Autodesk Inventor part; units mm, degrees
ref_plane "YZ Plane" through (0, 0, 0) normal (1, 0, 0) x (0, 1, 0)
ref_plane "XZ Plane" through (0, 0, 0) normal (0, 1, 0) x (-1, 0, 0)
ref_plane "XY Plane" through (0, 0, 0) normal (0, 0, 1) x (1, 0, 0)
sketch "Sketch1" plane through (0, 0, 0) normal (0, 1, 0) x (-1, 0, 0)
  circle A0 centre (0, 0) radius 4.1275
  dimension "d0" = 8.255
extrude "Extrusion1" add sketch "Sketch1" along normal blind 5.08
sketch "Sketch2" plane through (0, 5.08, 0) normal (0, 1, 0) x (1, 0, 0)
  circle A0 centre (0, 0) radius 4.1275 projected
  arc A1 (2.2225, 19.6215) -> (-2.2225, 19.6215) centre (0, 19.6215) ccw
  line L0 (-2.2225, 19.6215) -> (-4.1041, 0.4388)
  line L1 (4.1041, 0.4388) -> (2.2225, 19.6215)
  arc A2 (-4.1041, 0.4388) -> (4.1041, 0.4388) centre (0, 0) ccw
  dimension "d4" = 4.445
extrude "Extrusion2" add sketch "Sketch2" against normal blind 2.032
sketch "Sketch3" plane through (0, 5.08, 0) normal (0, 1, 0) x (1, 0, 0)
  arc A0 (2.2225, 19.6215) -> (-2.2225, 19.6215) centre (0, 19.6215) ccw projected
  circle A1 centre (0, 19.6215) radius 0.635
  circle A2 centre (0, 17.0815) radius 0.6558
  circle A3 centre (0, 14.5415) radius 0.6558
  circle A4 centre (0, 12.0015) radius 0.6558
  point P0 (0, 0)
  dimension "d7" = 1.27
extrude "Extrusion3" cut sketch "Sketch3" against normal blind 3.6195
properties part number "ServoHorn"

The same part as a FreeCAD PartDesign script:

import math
import FreeCAD as App
import Part
import Sketcher
Q = App.Units.Quantity

doc = App.newDocument("Part")
body = doc.addObject("PartDesign::Body", "Body")

# Sketch on XZ plane
sketch1 = body.newObject("Sketcher::SketchObject", "Sketch")
sketch1.AttachmentSupport = (doc.getObject("XZ_Plane"), [""])
sketch1.MapMode = "FlatFace"
sketch1.addGeometry(Part.Circle(App.Vector(0, 0, 0), App.Vector(0, 0, 1), 4.1), False)
sketch1.addConstraint([
    Sketcher.Constraint("Coincident", 0, 3, -1, 1),
    Sketcher.Constraint("Diameter", 0, Q("0.325 in")),
])
pad1 = body.newObject("PartDesign::Pad", "Pad")
pad1.Profile = sketch1
pad1.Length = Q("0.2 in")
pad1.Reversed = True

# Sketch on XZ plane
sketch2 = body.newObject("Sketcher::SketchObject", "Sketch001")
sketch2.AttachmentSupport = (doc.getObject("XZ_Plane"), [""])
sketch2.MapMode = "FlatFace"
sketch2.AttachmentOffset = App.Placement(App.Vector(0, 0, -0.2 * 25.4), App.Rotation())
sketch2.addGeometry([
    Part.ArcOfCircle(Part.Circle(App.Vector(0, 0, 0), App.Vector(0, 0, 1), 4.1), math.radians(-6), math.radians(186)),
    Part.LineSegment(App.Vector(4.1, -0.4, 0), App.Vector(2.2, -19.6, 0)),
    Part.ArcOfCircle(Part.Circle(App.Vector(0, -19.6, 0), App.Vector(0, 0, 1), 2.2), math.radians(180), math.radians(360)),
    Part.LineSegment(App.Vector(-2.2, -19.6, 0), App.Vector(-4.1, -0.4, 0)),
], False)
sketch2.addConstraint([
    Sketcher.Constraint("Coincident", 0, 1, 1, 1),
    Sketcher.Constraint("Coincident", 1, 2, 2, 2),
    Sketcher.Constraint("Coincident", 2, 1, 3, 1),
    Sketcher.Constraint("Coincident", 3, 2, 0, 2),
    Sketcher.Constraint("Coincident", 0, 3, -1, 1),
    Sketcher.Constraint("Symmetric", 1, 2, 2, 1, -2),
    Sketcher.Constraint("Horizontal", 2, 3, 1, 2),
    Sketcher.Constraint("Horizontal", 0, 1, 3, 2),
    Sketcher.Constraint("Radius", 2, Q("0.0875 in")),
    Sketcher.Constraint("Radius", 0, Q("0.1625 in")),
    Sketcher.Constraint("DistanceY", 2, 3, -1, 1, Q("0.7725 in")),
    Sketcher.Constraint("Distance", 1, 19.2748),
])
pad2 = body.newObject("PartDesign::Pad", "Pad001")
pad2.Profile = sketch2
pad2.Length = Q("0.08 in")

# Sketch on XZ plane
sketch3 = body.newObject("Sketcher::SketchObject", "Sketch002")
sketch3.AttachmentSupport = (doc.getObject("XZ_Plane"), [""])
sketch3.MapMode = "FlatFace"
sketch3.AttachmentOffset = App.Placement(App.Vector(0, 0, -0.2 * 25.4), App.Rotation())
sketch3.addGeometry([
    Part.Circle(App.Vector(0, -19.6, 0), App.Vector(0, 0, 1), 0.6),
    Part.Circle(App.Vector(0, -17.1, 0), App.Vector(0, 0, 1), 0.7),
    Part.Circle(App.Vector(0, -14.5, 0), App.Vector(0, 0, 1), 0.7),
    Part.Circle(App.Vector(0, -12, 0), App.Vector(0, 0, 1), 0.7),
], False)
sketch3.addConstraint([
    Sketcher.Constraint("Equal", 1, 2),
    Sketcher.Constraint("Equal", 2, 3),
    Sketcher.Constraint("PointOnObject", 0, 3, -2),
    Sketcher.Constraint("PointOnObject", 1, 3, -2),
    Sketcher.Constraint("PointOnObject", 2, 3, -2),
    Sketcher.Constraint("PointOnObject", 3, 3, -2),
    Sketcher.Constraint("Diameter", 0, Q("0.05 in")),
    Sketcher.Constraint("DistanceY", 0, 3, 1, 3, Q("0.1 in")),
    Sketcher.Constraint("DistanceY", 1, 3, 2, 3, Q("0.1 in")),
    Sketcher.Constraint("DistanceY", 2, 3, 3, 3, Q("0.1 in")),
    Sketcher.Constraint("Diameter", 1, 1.3116),
    Sketcher.Constraint("DistanceY", 0, 3, -1, 1, Q("0.7725 in")),
])
pocket1 = body.newObject("PartDesign::Pocket", "Pocket")
pocket1.Profile = sketch3
pocket1.Length = Q("0.1425 in")
pocket1.Reversed = True

doc.recompute()
